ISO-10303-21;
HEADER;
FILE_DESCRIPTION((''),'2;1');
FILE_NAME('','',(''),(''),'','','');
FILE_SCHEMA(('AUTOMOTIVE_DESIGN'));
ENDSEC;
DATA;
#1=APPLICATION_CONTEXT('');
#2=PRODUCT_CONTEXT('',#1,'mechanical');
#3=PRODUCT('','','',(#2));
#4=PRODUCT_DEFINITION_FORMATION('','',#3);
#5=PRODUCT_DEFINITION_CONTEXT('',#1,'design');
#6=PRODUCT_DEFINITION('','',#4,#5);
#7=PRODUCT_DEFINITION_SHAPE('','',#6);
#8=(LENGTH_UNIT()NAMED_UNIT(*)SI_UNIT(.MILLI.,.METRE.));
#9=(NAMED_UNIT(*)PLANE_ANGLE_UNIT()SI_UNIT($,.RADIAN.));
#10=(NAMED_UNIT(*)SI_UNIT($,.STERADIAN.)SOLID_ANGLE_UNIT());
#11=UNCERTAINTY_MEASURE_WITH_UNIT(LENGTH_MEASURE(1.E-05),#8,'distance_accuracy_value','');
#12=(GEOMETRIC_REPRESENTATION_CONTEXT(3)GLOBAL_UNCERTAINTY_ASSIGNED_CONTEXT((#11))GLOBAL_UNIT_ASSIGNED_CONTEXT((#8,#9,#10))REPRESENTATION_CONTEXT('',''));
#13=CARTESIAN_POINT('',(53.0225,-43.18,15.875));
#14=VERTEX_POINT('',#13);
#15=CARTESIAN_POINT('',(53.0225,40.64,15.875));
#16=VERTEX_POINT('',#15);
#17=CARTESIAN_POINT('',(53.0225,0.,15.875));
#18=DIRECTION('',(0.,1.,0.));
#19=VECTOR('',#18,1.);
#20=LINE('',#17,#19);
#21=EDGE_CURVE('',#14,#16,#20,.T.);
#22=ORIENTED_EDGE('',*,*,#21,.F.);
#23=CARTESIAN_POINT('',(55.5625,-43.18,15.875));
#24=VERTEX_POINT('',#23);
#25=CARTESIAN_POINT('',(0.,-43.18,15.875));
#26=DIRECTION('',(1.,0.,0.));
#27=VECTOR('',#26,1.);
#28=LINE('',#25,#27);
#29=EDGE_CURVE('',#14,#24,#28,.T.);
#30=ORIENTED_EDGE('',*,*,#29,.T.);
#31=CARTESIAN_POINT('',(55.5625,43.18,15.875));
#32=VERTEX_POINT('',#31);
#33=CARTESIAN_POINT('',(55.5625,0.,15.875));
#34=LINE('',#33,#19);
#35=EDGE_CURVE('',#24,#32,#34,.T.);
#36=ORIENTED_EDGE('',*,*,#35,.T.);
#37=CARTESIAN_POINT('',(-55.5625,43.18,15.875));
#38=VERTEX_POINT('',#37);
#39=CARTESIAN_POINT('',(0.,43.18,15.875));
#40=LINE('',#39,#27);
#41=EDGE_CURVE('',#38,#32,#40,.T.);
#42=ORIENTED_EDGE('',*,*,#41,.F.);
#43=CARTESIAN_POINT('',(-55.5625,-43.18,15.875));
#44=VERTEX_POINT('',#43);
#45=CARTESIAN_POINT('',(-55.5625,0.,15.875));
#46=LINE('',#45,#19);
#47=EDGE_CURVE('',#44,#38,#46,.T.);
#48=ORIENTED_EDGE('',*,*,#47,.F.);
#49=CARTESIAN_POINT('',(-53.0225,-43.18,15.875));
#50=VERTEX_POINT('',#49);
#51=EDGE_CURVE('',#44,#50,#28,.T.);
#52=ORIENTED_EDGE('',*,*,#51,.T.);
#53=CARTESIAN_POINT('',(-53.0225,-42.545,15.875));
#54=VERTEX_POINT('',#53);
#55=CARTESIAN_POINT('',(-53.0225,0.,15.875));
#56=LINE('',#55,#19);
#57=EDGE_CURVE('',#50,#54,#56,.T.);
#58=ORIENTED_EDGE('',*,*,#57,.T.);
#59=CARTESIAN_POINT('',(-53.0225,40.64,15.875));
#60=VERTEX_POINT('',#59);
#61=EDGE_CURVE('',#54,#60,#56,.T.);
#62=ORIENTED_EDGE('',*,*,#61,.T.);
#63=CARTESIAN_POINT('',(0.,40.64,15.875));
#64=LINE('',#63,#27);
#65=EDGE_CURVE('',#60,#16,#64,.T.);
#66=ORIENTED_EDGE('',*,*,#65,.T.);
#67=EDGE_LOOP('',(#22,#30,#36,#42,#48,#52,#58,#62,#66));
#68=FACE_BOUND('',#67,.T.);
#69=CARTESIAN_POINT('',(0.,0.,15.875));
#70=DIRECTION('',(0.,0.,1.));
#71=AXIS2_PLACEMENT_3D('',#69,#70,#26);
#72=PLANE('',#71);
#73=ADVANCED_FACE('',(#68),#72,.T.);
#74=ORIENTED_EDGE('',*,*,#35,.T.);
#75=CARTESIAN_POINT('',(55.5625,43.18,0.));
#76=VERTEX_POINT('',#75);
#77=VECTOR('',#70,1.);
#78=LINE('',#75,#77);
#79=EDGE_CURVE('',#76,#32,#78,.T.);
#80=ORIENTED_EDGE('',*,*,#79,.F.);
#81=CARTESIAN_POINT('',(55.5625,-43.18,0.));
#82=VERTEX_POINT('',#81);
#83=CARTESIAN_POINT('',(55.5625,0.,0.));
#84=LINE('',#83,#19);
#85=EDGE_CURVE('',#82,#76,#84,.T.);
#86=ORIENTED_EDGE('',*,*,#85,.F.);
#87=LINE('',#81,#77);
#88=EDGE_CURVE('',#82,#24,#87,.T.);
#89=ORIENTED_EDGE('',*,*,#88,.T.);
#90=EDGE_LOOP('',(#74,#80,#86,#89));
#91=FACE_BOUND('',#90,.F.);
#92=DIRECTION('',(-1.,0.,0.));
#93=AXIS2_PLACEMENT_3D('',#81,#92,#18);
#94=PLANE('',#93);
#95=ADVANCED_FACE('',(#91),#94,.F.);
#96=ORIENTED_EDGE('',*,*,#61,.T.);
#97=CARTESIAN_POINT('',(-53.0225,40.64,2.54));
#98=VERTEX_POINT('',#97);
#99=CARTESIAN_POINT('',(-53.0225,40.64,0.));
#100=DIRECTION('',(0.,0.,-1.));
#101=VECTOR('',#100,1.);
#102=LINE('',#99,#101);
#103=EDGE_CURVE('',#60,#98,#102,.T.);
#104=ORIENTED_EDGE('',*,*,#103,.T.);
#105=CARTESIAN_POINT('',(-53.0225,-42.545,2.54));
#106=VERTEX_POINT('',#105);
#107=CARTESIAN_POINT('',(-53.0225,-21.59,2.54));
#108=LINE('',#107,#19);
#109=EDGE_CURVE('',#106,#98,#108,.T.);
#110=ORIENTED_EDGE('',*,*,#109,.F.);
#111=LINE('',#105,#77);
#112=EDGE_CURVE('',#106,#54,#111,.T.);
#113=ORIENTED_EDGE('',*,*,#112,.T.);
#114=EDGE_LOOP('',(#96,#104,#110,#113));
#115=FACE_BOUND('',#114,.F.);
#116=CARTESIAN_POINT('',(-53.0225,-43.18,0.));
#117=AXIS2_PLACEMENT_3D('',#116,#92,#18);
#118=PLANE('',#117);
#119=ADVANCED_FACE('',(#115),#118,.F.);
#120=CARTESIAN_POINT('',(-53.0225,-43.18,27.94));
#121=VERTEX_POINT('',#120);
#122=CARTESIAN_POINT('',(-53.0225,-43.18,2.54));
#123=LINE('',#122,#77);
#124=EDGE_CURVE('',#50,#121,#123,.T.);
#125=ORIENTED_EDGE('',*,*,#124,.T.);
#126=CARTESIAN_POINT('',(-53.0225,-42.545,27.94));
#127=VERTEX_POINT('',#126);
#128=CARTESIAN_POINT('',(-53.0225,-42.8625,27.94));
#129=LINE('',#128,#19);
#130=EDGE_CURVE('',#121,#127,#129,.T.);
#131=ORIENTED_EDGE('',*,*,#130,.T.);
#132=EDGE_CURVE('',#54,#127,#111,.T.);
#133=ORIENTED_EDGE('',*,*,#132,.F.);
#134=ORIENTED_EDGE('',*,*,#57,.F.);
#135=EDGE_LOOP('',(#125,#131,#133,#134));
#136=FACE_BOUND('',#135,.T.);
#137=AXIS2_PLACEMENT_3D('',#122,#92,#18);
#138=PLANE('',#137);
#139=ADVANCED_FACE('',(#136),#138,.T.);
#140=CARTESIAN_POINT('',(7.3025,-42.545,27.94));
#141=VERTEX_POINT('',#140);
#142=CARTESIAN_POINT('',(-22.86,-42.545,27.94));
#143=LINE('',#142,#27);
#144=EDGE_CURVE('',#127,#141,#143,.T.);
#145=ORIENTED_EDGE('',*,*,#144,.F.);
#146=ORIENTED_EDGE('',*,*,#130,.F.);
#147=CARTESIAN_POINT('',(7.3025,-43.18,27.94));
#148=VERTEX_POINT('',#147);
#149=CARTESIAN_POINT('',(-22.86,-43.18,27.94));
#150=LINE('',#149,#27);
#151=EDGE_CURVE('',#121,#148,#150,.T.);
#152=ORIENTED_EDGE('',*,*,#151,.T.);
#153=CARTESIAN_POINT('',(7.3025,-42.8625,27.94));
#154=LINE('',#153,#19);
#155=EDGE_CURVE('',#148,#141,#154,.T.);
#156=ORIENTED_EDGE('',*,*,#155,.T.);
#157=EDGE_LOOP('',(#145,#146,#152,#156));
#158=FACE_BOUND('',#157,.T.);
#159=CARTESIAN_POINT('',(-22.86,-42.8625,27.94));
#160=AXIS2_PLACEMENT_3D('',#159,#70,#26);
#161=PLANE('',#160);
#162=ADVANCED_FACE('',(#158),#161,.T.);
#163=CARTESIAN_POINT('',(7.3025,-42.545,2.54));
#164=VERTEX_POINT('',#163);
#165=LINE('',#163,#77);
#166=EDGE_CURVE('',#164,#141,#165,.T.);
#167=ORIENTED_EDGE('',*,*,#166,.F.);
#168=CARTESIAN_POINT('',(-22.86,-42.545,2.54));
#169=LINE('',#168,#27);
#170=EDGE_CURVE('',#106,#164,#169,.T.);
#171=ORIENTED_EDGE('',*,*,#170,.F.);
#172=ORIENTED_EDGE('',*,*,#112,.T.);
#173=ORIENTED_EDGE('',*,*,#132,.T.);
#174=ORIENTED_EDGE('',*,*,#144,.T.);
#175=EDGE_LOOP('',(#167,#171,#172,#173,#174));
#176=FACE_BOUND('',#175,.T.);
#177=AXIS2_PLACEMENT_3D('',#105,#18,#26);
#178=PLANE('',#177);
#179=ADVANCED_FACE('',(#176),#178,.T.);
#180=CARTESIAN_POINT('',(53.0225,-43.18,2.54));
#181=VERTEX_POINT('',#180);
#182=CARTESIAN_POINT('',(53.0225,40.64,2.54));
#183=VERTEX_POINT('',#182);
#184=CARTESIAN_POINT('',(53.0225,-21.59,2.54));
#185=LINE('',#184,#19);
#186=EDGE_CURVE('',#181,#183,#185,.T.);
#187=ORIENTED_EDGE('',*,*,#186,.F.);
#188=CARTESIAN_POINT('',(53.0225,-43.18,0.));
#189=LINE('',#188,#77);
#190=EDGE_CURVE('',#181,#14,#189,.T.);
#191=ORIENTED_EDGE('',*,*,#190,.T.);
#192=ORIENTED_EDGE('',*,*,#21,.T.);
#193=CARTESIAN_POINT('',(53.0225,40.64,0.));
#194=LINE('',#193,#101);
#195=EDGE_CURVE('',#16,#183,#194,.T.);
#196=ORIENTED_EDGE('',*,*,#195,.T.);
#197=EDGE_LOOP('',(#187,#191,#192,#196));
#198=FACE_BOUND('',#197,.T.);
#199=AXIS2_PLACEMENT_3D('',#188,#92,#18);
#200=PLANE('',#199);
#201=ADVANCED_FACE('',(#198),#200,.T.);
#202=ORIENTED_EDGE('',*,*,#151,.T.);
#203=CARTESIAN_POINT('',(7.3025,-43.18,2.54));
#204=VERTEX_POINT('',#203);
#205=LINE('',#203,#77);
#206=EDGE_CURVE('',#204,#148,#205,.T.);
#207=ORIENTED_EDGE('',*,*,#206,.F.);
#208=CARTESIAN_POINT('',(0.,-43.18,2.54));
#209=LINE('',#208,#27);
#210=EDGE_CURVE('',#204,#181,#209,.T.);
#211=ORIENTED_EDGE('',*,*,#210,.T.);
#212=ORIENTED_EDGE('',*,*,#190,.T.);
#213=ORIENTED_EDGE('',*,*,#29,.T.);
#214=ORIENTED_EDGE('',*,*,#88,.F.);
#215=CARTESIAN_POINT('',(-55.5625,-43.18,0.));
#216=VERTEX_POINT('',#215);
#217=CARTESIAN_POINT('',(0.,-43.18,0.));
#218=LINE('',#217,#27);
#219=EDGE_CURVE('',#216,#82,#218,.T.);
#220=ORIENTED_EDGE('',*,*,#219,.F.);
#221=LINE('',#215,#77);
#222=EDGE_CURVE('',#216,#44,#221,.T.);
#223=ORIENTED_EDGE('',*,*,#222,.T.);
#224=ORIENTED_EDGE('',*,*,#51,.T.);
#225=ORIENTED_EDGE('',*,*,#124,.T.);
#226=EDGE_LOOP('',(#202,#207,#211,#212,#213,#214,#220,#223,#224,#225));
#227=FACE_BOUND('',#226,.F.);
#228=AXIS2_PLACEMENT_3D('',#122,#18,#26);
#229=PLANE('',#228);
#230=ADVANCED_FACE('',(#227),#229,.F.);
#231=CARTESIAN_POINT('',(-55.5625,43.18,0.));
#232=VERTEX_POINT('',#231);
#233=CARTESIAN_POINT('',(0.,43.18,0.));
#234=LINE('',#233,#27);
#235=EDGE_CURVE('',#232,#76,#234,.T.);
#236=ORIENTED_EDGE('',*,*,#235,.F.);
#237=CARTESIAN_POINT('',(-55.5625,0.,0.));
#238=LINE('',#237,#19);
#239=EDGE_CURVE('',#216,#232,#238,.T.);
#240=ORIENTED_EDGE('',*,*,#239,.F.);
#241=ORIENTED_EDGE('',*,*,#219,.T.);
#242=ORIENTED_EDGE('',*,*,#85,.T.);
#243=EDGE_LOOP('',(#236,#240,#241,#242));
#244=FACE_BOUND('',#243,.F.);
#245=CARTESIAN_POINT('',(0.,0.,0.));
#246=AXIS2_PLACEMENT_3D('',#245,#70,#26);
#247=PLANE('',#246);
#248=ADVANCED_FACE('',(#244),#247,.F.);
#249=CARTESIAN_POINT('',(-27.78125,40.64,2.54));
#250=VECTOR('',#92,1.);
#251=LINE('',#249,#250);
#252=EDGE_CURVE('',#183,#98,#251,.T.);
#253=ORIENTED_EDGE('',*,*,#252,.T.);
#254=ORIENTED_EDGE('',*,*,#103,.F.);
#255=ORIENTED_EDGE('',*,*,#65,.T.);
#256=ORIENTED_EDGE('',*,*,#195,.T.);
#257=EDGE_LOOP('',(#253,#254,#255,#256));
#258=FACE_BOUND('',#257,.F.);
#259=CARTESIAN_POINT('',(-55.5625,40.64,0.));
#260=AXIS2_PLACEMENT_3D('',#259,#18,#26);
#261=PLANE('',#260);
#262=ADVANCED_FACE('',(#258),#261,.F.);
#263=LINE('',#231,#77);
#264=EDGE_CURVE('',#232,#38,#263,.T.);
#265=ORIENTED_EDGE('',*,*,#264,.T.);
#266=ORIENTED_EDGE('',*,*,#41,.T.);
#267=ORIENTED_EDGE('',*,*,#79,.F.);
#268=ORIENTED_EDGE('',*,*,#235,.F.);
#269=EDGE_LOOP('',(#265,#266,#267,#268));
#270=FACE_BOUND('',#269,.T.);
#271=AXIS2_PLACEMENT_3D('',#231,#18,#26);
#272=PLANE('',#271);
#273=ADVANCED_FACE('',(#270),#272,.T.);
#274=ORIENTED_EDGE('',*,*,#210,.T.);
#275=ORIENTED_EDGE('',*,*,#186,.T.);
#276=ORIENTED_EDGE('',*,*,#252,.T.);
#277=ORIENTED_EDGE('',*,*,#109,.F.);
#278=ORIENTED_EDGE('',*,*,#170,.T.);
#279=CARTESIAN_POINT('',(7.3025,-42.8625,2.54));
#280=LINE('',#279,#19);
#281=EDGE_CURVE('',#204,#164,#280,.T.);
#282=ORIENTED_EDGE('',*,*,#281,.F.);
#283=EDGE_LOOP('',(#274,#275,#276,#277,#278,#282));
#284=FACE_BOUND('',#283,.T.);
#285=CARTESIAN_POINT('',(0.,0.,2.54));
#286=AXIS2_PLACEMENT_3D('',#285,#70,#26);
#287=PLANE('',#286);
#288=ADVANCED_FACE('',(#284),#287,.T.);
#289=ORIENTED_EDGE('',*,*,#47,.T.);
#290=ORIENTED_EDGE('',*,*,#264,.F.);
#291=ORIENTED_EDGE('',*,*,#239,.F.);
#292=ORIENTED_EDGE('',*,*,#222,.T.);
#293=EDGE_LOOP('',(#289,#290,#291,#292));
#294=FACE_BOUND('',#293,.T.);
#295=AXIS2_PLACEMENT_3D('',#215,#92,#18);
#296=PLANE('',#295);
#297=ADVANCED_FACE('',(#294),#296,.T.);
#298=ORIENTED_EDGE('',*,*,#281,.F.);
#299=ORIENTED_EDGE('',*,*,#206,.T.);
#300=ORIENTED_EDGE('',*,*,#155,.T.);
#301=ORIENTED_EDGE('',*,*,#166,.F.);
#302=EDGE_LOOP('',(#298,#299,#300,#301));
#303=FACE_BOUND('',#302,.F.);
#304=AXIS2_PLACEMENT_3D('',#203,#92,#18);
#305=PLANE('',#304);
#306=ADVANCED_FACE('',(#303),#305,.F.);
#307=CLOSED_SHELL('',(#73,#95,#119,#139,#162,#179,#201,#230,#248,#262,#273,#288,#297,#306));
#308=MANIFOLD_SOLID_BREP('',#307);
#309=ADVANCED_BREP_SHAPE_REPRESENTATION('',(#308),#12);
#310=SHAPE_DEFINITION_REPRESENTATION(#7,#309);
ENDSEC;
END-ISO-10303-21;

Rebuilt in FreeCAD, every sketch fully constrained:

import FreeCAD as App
import Part
import Sketcher
from FreeCAD import Vector
Q = App.Units.Quantity


def faces_at(feature, points):
    """Names of the faces that lie closest to the given points."""
    faces = feature.Shape.Faces
    near = lambda p: min(range(len(faces)), key=lambda i: faces[i].distToShape(Part.Vertex(*p))[0])
    return sorted({f"Face{near(p) + 1}" for p in points})

doc = App.newDocument("Part")
body = doc.addObject("PartDesign::Body", "Body")

sketch1 = doc.addObject("Sketcher::SketchObject", "Sketch")
body.addObject(sketch1)
sketch1.AttachmentSupport = (doc.XY_Plane, [""])
sketch1.MapMode = "FlatFace"
sketch1.addGeometry(Part.LineSegment(Vector(-56, 43, 0), Vector(-56, -43, 0)), False)
sketch1.addGeometry(Part.LineSegment(Vector(-56, -43, 0), Vector(56, -43, 0)), False)
sketch1.addGeometry(Part.LineSegment(Vector(56, -43, 0), Vector(56, 43, 0)), False)
sketch1.addGeometry(Part.LineSegment(Vector(56, 43, 0), Vector(-56, 43, 0)), False)
sketch1.addConstraint(Sketcher.Constraint("Coincident", 0, 2, 1, 1))
sketch1.addConstraint(Sketcher.Constraint("Coincident", 1, 2, 2, 1))
sketch1.addConstraint(Sketcher.Constraint("Coincident", 2, 2, 3, 1))
sketch1.addConstraint(Sketcher.Constraint("Coincident", 3, 2, 0, 1))
sketch1.addConstraint(Sketcher.Constraint("Vertical", 0))
sketch1.addConstraint(Sketcher.Constraint("Horizontal", 1))
sketch1.addConstraint(Sketcher.Constraint("Vertical", 2))
sketch1.addConstraint(Sketcher.Constraint("Horizontal", 3))
sketch1.addConstraint(Sketcher.Constraint("Symmetric", 0, 2, 2, 2, -1, 1))
sketch1.addConstraint(Sketcher.Constraint("DistanceY", 0, 2, 0, 1, Q("3.4 in")))
sketch1.addConstraint(Sketcher.Constraint("DistanceX", 1, 1, 1, 2, Q("4.375 in")))
pad1 = doc.addObject("PartDesign::Pad", "Pad")
body.addObject(pad1)
pad1.Profile = sketch1
pad1.Length = Q("0.625 in")
doc.recompute()

thickness = doc.addObject("PartDesign::Thickness", "Thickness")
body.addObject(thickness)
thickness.Base = (pad1, faces_at(pad1, [(0, 0, 15.875), (0, -43.18, 7.938)]))
thickness.Value = Q("0.1 in")
thickness.Reversed = True
thickness.Join = "Arc"

sketch2 = doc.addObject("Sketcher::SketchObject", "Sketch001")
body.addObject(sketch2)
sketch2.AttachmentSupport = (doc.XY_Plane, [""])
sketch2.MapMode = "FlatFace"
sketch2.AttachmentOffset = App.Placement(Vector(0, 0, 0.1 * 25.4), App.Rotation())
sketch2.addGeometry(Part.LineSegment(Vector(-53, -42.5, 0), Vector(-53, -43.2, 0)), False)
sketch2.addGeometry(Part.LineSegment(Vector(-53, -43.2, 0), Vector(7.3, -43.2, 0)), False)
sketch2.addGeometry(Part.LineSegment(Vector(7.3, -43.2, 0), Vector(7.3, -42.5, 0)), False)
sketch2.addGeometry(Part.LineSegment(Vector(7.3, -42.5, 0), Vector(-53, -42.5, 0)), False)
sketch2.addConstraint(Sketcher.Constraint("Coincident", 0, 2, 1, 1))
sketch2.addConstraint(Sketcher.Constraint("Coincident", 1, 2, 2, 1))
sketch2.addConstraint(Sketcher.Constraint("Coincident", 2, 2, 3, 1))
sketch2.addConstraint(Sketcher.Constraint("Coincident", 3, 2, 0, 1))
sketch2.addConstraint(Sketcher.Constraint("Vertical", 0))
sketch2.addConstraint(Sketcher.Constraint("Horizontal", 1))
sketch2.addConstraint(Sketcher.Constraint("Vertical", 2))
sketch2.addConstraint(Sketcher.Constraint("Horizontal", 3))
sketch2.addConstraint(Sketcher.Constraint("DistanceY", 0, 2, -1, 1, Q("1.7 in")))
sketch2.addConstraint(Sketcher.Constraint("DistanceX", 1, 1, 1, 2, Q("2.375 in")))
sketch2.addConstraint(Sketcher.Constraint("DistanceY", 0, 2, 0, 1, Q("0.025 in")))
sketch2.addConstraint(Sketcher.Constraint("DistanceX", 0, 2, -1, 1, Q("2.0875 in")))
pad2 = doc.addObject("PartDesign::Pad", "Pad001")
body.addObject(pad2)
pad2.Profile = sketch2
pad2.Length = Q("1 in")

doc.recompute()
